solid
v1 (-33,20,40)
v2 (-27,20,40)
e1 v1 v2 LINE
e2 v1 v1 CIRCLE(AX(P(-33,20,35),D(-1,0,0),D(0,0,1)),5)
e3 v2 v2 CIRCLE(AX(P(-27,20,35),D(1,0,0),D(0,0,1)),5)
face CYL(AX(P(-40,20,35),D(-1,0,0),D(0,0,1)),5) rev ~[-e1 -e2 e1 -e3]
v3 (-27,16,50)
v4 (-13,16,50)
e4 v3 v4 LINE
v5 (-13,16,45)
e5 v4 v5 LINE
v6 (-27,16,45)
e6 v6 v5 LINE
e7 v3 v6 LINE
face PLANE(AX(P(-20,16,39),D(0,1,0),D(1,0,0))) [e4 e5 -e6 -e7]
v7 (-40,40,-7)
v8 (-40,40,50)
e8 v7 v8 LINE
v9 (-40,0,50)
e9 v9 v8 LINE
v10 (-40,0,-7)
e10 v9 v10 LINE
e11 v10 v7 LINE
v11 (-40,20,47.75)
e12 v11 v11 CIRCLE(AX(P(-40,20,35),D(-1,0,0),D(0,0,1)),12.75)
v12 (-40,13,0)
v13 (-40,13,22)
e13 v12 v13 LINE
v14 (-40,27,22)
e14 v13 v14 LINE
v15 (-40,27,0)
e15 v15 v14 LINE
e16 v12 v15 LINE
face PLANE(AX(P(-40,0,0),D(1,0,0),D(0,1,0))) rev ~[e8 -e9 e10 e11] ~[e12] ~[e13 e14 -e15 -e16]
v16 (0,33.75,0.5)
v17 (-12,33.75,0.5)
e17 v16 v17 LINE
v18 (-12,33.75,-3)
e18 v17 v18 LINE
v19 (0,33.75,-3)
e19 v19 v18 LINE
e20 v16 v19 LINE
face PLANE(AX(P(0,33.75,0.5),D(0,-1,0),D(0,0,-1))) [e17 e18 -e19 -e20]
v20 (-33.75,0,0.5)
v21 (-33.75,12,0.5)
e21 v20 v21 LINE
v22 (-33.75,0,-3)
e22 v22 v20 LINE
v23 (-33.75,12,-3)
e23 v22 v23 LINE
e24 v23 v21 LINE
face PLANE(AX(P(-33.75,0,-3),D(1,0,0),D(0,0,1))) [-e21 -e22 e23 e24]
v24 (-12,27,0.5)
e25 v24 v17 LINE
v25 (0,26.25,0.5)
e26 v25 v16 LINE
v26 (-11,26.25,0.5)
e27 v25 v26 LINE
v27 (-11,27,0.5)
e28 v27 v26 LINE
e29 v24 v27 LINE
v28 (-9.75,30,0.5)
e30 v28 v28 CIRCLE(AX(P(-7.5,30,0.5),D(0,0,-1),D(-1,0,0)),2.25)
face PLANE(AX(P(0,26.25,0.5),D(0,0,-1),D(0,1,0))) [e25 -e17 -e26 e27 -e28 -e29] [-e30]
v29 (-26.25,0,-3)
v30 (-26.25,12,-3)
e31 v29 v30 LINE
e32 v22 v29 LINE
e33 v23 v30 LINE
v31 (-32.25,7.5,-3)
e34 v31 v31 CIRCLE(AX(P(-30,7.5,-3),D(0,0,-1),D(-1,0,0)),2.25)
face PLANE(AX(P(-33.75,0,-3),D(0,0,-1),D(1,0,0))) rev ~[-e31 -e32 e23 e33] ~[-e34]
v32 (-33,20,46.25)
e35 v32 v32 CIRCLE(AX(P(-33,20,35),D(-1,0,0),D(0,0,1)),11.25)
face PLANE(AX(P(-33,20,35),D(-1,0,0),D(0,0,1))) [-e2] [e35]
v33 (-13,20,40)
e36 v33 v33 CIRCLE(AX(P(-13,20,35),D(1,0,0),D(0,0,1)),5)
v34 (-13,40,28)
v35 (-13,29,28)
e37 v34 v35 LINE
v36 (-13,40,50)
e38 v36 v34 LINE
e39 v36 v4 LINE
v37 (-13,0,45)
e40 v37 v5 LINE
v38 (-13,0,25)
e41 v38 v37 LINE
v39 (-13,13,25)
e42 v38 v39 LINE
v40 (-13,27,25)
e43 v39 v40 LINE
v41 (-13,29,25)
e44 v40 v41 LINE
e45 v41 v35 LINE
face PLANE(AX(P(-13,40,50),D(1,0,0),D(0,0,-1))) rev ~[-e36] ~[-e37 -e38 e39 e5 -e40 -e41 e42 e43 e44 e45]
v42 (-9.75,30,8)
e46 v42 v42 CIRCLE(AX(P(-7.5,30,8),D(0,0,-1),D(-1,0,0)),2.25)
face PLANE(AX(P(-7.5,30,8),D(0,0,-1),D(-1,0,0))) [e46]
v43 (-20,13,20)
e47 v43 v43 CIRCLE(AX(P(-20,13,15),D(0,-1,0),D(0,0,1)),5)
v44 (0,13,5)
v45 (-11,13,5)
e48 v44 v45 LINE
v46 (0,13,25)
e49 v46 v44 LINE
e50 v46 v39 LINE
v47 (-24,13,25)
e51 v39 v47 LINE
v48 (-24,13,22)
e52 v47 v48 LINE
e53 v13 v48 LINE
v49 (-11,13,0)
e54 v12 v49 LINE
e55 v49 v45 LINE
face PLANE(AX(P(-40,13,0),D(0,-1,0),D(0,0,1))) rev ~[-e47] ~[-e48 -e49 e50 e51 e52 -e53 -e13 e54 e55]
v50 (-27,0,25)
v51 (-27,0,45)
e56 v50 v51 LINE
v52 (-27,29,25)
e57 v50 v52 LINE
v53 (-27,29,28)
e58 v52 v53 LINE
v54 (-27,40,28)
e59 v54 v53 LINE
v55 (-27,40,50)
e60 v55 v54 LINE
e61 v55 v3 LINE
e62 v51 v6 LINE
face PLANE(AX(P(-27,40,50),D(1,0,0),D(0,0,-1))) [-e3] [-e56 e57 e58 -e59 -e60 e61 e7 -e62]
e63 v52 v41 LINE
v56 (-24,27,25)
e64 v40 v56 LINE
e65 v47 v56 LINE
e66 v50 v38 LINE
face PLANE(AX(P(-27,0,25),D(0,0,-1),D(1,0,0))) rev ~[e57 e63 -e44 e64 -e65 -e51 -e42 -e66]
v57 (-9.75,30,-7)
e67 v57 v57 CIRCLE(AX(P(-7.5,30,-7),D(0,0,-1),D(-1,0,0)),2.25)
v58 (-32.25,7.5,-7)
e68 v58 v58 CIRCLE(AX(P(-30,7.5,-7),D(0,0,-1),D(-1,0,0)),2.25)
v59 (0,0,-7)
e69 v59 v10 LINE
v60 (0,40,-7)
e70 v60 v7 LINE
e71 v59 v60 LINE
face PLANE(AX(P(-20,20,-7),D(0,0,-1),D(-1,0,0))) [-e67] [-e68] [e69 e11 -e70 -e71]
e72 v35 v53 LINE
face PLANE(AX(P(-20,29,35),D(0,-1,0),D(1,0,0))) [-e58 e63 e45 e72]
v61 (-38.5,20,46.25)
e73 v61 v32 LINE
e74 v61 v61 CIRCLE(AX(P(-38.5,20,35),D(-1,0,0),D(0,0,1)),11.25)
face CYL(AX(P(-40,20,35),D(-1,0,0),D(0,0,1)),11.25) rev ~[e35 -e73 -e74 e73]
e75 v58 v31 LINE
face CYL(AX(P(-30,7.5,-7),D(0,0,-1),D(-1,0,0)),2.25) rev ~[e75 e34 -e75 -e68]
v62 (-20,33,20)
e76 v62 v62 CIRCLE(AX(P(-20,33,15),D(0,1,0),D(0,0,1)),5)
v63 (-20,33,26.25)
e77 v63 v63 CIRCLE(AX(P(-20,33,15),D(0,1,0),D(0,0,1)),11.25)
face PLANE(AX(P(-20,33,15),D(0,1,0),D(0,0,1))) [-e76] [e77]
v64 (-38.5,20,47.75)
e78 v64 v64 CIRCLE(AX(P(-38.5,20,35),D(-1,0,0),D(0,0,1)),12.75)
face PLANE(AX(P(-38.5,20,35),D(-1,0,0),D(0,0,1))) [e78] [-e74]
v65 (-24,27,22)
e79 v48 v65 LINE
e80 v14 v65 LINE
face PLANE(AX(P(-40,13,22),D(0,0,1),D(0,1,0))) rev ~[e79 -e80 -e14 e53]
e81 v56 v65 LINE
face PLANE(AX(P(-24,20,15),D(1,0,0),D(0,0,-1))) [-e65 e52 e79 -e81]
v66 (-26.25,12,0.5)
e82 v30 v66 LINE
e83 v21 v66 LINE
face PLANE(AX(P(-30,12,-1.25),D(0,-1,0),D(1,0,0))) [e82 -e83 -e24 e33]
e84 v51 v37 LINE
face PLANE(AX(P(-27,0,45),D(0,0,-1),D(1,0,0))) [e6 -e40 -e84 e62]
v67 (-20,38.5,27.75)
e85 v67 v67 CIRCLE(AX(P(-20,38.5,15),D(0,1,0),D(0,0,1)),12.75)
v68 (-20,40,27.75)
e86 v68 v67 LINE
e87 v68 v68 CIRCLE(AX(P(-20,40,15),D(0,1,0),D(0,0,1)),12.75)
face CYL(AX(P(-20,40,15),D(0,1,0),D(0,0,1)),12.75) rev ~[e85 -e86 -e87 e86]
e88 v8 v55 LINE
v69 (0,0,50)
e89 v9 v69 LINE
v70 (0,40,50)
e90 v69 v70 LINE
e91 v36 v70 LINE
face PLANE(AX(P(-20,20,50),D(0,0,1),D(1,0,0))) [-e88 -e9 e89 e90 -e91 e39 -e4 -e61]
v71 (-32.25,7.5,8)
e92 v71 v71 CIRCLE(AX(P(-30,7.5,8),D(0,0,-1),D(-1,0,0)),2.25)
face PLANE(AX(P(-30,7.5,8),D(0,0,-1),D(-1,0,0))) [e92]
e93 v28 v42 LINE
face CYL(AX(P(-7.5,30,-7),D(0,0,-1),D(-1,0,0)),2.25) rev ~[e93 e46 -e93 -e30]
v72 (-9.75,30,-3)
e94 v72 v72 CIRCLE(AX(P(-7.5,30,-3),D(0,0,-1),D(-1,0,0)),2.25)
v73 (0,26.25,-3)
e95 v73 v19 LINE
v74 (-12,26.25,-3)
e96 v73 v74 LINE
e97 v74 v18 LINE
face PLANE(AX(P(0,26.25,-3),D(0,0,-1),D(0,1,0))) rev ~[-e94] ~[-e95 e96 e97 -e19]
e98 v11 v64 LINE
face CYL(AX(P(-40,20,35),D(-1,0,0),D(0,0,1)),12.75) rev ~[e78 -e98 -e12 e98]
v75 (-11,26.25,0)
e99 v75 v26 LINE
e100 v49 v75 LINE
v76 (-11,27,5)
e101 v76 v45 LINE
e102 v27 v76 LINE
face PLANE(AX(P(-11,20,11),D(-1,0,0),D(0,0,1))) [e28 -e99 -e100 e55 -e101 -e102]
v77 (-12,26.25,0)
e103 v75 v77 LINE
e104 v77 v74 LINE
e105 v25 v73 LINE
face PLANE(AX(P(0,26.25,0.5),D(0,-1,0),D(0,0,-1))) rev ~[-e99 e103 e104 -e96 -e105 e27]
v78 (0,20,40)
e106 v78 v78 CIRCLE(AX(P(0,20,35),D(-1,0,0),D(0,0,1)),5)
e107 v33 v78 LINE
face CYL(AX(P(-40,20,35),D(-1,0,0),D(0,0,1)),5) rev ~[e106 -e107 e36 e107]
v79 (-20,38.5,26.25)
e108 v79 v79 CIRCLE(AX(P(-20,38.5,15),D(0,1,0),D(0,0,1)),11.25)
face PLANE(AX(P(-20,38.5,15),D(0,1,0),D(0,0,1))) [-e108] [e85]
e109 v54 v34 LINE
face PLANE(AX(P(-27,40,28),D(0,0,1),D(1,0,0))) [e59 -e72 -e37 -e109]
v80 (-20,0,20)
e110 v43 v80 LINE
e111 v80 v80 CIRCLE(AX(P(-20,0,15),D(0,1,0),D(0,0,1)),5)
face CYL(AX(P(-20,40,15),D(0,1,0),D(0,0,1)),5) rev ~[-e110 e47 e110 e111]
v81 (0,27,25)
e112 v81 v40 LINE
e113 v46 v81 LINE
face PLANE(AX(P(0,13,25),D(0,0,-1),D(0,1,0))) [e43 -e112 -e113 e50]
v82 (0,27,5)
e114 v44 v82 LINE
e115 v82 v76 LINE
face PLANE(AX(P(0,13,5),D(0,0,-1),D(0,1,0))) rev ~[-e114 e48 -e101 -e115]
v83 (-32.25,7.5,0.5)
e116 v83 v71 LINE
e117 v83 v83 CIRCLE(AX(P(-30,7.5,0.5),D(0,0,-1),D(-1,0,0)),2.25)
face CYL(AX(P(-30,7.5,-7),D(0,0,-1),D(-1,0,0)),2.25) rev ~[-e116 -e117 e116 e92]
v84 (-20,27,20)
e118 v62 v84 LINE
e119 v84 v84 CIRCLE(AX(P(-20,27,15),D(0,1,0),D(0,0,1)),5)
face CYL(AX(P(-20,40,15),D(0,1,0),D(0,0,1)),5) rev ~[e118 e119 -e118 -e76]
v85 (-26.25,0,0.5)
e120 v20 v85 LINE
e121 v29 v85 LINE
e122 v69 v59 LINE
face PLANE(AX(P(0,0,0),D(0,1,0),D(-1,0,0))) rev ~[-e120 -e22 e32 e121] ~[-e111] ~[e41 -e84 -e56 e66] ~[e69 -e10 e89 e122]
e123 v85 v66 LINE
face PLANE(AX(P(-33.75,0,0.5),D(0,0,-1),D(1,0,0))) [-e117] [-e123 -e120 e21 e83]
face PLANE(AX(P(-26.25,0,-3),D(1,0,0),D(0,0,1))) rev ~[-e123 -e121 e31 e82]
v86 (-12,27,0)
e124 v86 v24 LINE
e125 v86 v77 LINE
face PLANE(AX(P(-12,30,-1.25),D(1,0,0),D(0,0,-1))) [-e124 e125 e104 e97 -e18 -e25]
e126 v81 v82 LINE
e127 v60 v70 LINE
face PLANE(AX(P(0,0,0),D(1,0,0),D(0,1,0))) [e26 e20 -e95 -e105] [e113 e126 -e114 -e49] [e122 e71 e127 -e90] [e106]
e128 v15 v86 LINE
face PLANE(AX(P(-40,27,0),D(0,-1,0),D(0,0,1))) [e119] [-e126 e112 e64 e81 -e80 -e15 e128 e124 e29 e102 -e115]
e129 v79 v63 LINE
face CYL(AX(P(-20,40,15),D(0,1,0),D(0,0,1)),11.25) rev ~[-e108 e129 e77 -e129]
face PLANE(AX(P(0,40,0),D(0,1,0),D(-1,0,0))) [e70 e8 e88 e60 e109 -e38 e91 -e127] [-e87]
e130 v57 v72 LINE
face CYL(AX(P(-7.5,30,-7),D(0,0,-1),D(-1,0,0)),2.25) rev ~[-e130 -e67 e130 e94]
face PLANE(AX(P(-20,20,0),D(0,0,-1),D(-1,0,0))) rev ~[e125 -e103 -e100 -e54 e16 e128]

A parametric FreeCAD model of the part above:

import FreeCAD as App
import Part
import Sketcher

V = App.Vector
Q = App.Units.Quantity


def add_polygon(sketch, points):
    """Adds a closed chain of lines whose ends are joined by coincident constraints."""
    first, n = sketch.GeometryCount, len(points)
    for a, b in zip(points, points[1:] + points[:1]):
        sketch.addGeometry(Part.LineSegment(App.Vector(*a, 0), App.Vector(*b, 0)), False)
    for i in range(n):
        sketch.addConstraint(Sketcher.Constraint("Coincident", first + i, 2, first + (i + 1) % n, 1))

doc = App.newDocument("Part")
params = doc.addObject("Spreadsheet::Sheet", "Params")
for row, (alias, value) in enumerate([
    ("sketch1_width", "40 mm"),
    ("pad1_length", "50 mm"),
    ("sketch2_diameter", "10 mm"),
    ("sketch3_diameter", "10 mm"),
    ("sketch4_width", "14 mm"),
    ("sketch4_height", "22 mm"),
    ("pocket3_length", "29 mm"),
    ("sketch5_width", "14 mm"),
    ("sketch5_height", "20 mm"),
    ("pocket4_length", "29 mm"),
    ("sketch6_width", "14 mm"),
    ("sketch6_height", "20 mm"),
    ("pocket5_length", "24 mm"),
    ("sketch7_width", "14 mm"),
    ("sketch7_height", "22 mm"),
    ("pocket6_length", "24 mm"),
    ("sketch8_diameter", "22.5 mm"),
    ("pocket7_length", "7 mm"),
    ("sketch9_diameter", "25.5 mm"),
    ("pocket8_length", "1.5 mm"),
    ("sketch10_diameter", "22.5 mm"),
    ("pocket9_length", "7 mm"),
    ("sketch11_diameter", "25.5 mm"),
    ("pocket10_length", "1.5 mm"),
    ("sketch12_width", "40 mm"),
    ("pad2_length", "7 mm"),
    ("sketch13_diameter", "4.5 mm"),
    ("pocket11_length", "15 mm"),
    ("sketch14_width", "7.5 mm"),
    ("sketch14_height", "3.5 mm"),
    ("pocket12_length", "12 mm"),
    ("sketch15_width", "7.5 mm"),
    ("sketch15_height", "3.5 mm"),
    ("pocket13_length", "12 mm"),
], start=1):
    params.set(f"A{row}", alias)
    params.set(f"B{row}", "=" + value)
    params.setAlias(f"B{row}", alias)

body = doc.addObject("PartDesign::Body", "Body")

# Sketch on XY plane
sketch1 = body.newObject("Sketcher::SketchObject", "Sketch")
sketch1.AttachmentSupport = (doc.getObject("XY_Plane"), [""])
sketch1.MapMode = "FlatFace"
add_polygon(sketch1, [(-40, 40), (-40, 0), (0, 0), (0, 40)])  # lines 0-3
sketch1.addConstraint([
    Sketcher.Constraint("Vertical", 0),
    Sketcher.Constraint("Horizontal", 1),
    Sketcher.Constraint("Vertical", 2),
    Sketcher.Constraint("Horizontal", 3),
    Sketcher.Constraint("Coincident", 1, 2, -1, 1),
    Sketcher.Constraint("Equal", 3, 0),
    Sketcher.Constraint("DistanceX", 1, 1, 1, 2, Q("40 mm")),
])
sketch1.setExpression("Constraints[10]", "Params.sketch1_width")
pad1 = body.newObject("PartDesign::Pad", "Pad")
pad1.Profile = sketch1
pad1.setExpression("Length", "Params.pad1_length")

# Sketch on XZ plane
sketch2 = body.newObject("Sketcher::SketchObject", "Sketch001")
sketch2.AttachmentSupport = (doc.getObject("XZ_Plane"), [""])
sketch2.MapMode = "FlatFace"
sketch2.AttachmentOffset = App.Placement(V(0, 0, -40), App.Rotation())
sketch2.addGeometry(Part.Circle(V(-20, 15, 0), V(0, 0, 1), 5), False)
sketch2.addConstraint([
    Sketcher.Constraint("Diameter", 0, Q("10 mm")),
    Sketcher.Constraint("DistanceX", 0, 3, -1, 1, Q("20 mm")),
    Sketcher.Constraint("DistanceY", -1, 1, 0, 3, Q("15 mm")),
])
sketch2.setExpression("Constraints[0]", "Params.sketch2_diameter")
pocket1 = body.newObject("PartDesign::Pocket", "Pocket")
pocket1.Profile = sketch2
pocket1.Type = "ThroughAll"
pocket1.Reversed = True

# Sketch on YZ plane
sketch3 = body.newObject("Sketcher::SketchObject", "Sketch002")
sketch3.AttachmentSupport = (doc.getObject("YZ_Plane"), [""])
sketch3.MapMode = "FlatFace"
sketch3.AttachmentOffset = App.Placement(V(0, 0, -40), App.Rotation())
sketch3.addGeometry(Part.Circle(V(20, 35, 0), V(0, 0, 1), 5), False)
sketch3.addConstraint([
    Sketcher.Constraint("Diameter", 0, Q("10 mm")),
    Sketcher.Constraint("DistanceX", -1, 1, 0, 3, Q("20 mm")),
    Sketcher.Constraint("DistanceY", -1, 1, 0, 3, Q("35 mm")),
])
sketch3.setExpression("Constraints[0]", "Params.sketch3_diameter")
pocket2 = body.newObject("PartDesign::Pocket", "Pocket001")
pocket2.Profile = sketch3
pocket2.Type = "ThroughAll"
pocket2.Reversed = True

# Sketch on YZ plane
sketch4 = body.newObject("Sketcher::SketchObject", "Sketch003")
sketch4.AttachmentSupport = (doc.getObject("YZ_Plane"), [""])
sketch4.MapMode = "FlatFace"
sketch4.AttachmentOffset = App.Placement(V(0, 0, -40), App.Rotation())
add_polygon(sketch4, [(27, 0), (13, 0), (13, 22), (27, 22)])  # lines 0-3
sketch4.addConstraint([
    Sketcher.Constraint("Horizontal", 0),
    Sketcher.Constraint("Vertical", 1),
    Sketcher.Constraint("Horizontal", 2),
    Sketcher.Constraint("Vertical", 3),
    Sketcher.Constraint("PointOnObject", 0, 2, -1),
    Sketcher.Constraint("DistanceX", 0, 2, 0, 1, Q("14 mm")),
    Sketcher.Constraint("DistanceY", 1, 1, 1, 2, Q("22 mm")),
    Sketcher.Constraint("DistanceX", -1, 1, 0, 2, Q("13 mm")),
])
sketch4.setExpression("Constraints[9]", "Params.sketch4_width")
sketch4.setExpression("Constraints[10]", "Params.sketch4_height")
pocket3 = body.newObject("PartDesign::Pocket", "Pocket002")
pocket3.Profile = sketch4
pocket3.setExpression("Length", "Params.pocket3_length")
pocket3.Reversed = True

# Sketch on XZ plane
sketch5 = body.newObject("Sketcher::SketchObject", "Sketch004")
sketch5.AttachmentSupport = (doc.getObject("XZ_Plane"), [""])
sketch5.MapMode = "FlatFace"
add_polygon(sketch5, [(-27, 45), (-27, 25), (-13, 25), (-13, 45)])  # lines 0-3
sketch5.addConstraint([
    Sketcher.Constraint("Vertical", 0),
    Sketcher.Constraint("Horizontal", 1),
    Sketcher.Constraint("Vertical", 2),
    Sketcher.Constraint("Horizontal", 3),
    Sketcher.Constraint("DistanceX", 1, 1, 1, 2, Q("14 mm")),
    Sketcher.Constraint("DistanceY", 0, 2, 0, 1, Q("20 mm")),
    Sketcher.Constraint("DistanceX", 0, 2, -1, 1, Q("27 mm")),
    Sketcher.Constraint("DistanceY", -1, 1, 0, 2, Q("25 mm")),
])
sketch5.setExpression("Constraints[8]", "Params.sketch5_width")
sketch5.setExpression("Constraints[9]", "Params.sketch5_height")
pocket4 = body.newObject("PartDesign::Pocket", "Pocket003")
pocket4.Profile = sketch5
pocket4.setExpression("Length", "Params.pocket4_length")

# Sketch on YZ plane
sketch6 = body.newObject("Sketcher::SketchObject", "Sketch005")
sketch6.AttachmentSupport = (doc.getObject("YZ_Plane"), [""])
sketch6.MapMode = "FlatFace"
add_polygon(sketch6, [(27, 25), (13, 25), (13, 5), (27, 5)])  # lines 0-3
sketch6.addConstraint([
    Sketcher.Constraint("Horizontal", 0),
    Sketcher.Constraint("Vertical", 1),
    Sketcher.Constraint("Horizontal", 2),
    Sketcher.Constraint("Vertical", 3),
    Sketcher.Constraint("DistanceX", 0, 2, 0, 1, Q("14 mm")),
    Sketcher.Constraint("DistanceY", 1, 2, 1, 1, Q("20 mm")),
    Sketcher.Constraint("DistanceX", -1, 1, 0, 2, Q("13 mm")),
    Sketcher.Constraint("DistanceY", -1, 1, 0, 2, Q("25 mm")),
])
sketch6.setExpression("Constraints[8]", "Params.sketch6_width")
sketch6.setExpression("Constraints[9]", "Params.sketch6_height")
pocket5 = body.newObject("PartDesign::Pocket", "Pocket004")
pocket5.Profile = sketch6
pocket5.setExpression("Length", "Params.pocket5_length")

# Sketch on XZ plane
sketch7 = body.newObject("Sketcher::SketchObject", "Sketch006")
sketch7.AttachmentSupport = (doc.getObject("XZ_Plane"), [""])
sketch7.MapMode = "FlatFace"
sketch7.AttachmentOffset = App.Placement(V(0, 0, -40), App.Rotation())
add_polygon(sketch7, [(-27, 28), (-27, 50), (-13, 50), (-13, 28)])  # lines 0-3
sketch7.addConstraint([
    Sketcher.Constraint("Vertical", 0),
    Sketcher.Constraint("Horizontal", 1),
    Sketcher.Constraint("Vertical", 2),
    Sketcher.Constraint("Horizontal", 3),
    Sketcher.Constraint("DistanceX", 1, 1, 1, 2, Q("14 mm")),
    Sketcher.Constraint("DistanceY", 0, 1, 0, 2, Q("22 mm")),
    Sketcher.Constraint("DistanceX", 0, 2, -1, 1, Q("27 mm")),
    Sketcher.Constraint("DistanceY", -1, 1, 0, 2, Q("50 mm")),
])
sketch7.setExpression("Constraints[8]", "Params.sketch7_width")
sketch7.setExpression("Constraints[9]", "Params.sketch7_height")
pocket6 = body.newObject("PartDesign::Pocket", "Pocket005")
pocket6.Profile = sketch7
pocket6.setExpression("Length", "Params.pocket6_length")
pocket6.Reversed = True

# Sketch on XZ plane
sketch8 = body.newObject("Sketcher::SketchObject", "Sketch007")
sketch8.AttachmentSupport = (doc.getObject("XZ_Plane"), [""])
sketch8.MapMode = "FlatFace"
sketch8.AttachmentOffset = App.Placement(V(0, 0, -40), App.Rotation())
sketch8.addGeometry(Part.Circle(V(-20, 15, 0), V(0, 0, 1), 11), False)
sketch8.addConstraint([
    Sketcher.Constraint("Diameter", 0, Q("22.5 mm")),
    Sketcher.Constraint("DistanceX", 0, 3, -1, 1, Q("20 mm")),
    Sketcher.Constraint("DistanceY", -1, 1, 0, 3, Q("15 mm")),
])
sketch8.setExpression("Constraints[0]", "Params.sketch8_diameter")
pocket7 = body.newObject("PartDesign::Pocket", "Pocket006")
pocket7.Profile = sketch8
pocket7.setExpression("Length", "Params.pocket7_length")
pocket7.Reversed = True

# Sketch on XZ plane
sketch9 = body.newObject("Sketcher::SketchObject", "Sketch008")
sketch9.AttachmentSupport = (doc.getObject("XZ_Plane"), [""])
sketch9.MapMode = "FlatFace"
sketch9.AttachmentOffset = App.Placement(V(0, 0, -40), App.Rotation())
sketch9.addGeometry(Part.Circle(V(-20, 15, 0), V(0, 0, 1), 13), False)
sketch9.addConstraint([
    Sketcher.Constraint("Diameter", 0, Q("25.5 mm")),
    Sketcher.Constraint("DistanceX", 0, 3, -1, 1, Q("20 mm")),
    Sketcher.Constraint("DistanceY", -1, 1, 0, 3, Q("15 mm")),
])
sketch9.setExpression("Constraints[0]", "Params.sketch9_diameter")
pocket8 = body.newObject("PartDesign::Pocket", "Pocket007")
pocket8.Profile = sketch9
pocket8.setExpression("Length", "Params.pocket8_length")
pocket8.Reversed = True

# Sketch on YZ plane
sketch10 = body.newObject("Sketcher::SketchObject", "Sketch009")
sketch10.AttachmentSupport = (doc.getObject("YZ_Plane"), [""])
sketch10.MapMode = "FlatFace"
sketch10.AttachmentOffset = App.Placement(V(0, 0, -40), App.Rotation())
sketch10.addGeometry(Part.Circle(V(20, 35, 0), V(0, 0, 1), 11), False)
sketch10.addConstraint([
    Sketcher.Constraint("Diameter", 0, Q("22.5 mm")),
    Sketcher.Constraint("DistanceX", -1, 1, 0, 3, Q("20 mm")),
    Sketcher.Constraint("DistanceY", -1, 1, 0, 3, Q("35 mm")),
])
sketch10.setExpression("Constraints[0]", "Params.sketch10_diameter")
pocket9 = body.newObject("PartDesign::Pocket", "Pocket008")
pocket9.Profile = sketch10
pocket9.setExpression("Length", "Params.pocket9_length")
pocket9.Reversed = True

# Sketch on YZ plane
sketch11 = body.newObject("Sketcher::SketchObject", "Sketch010")
sketch11.AttachmentSupport = (doc.getObject("YZ_Plane"), [""])
sketch11.MapMode = "FlatFace"
sketch11.AttachmentOffset = App.Placement(V(0, 0, -40), App.Rotation())
sketch11.addGeometry(Part.Circle(V(20, 35, 0), V(0, 0, 1), 13), False)
sketch11.addConstraint([
    Sketcher.Constraint("Diameter", 0, Q("25.5 mm")),
    Sketcher.Constraint("DistanceX", -1, 1, 0, 3, Q("20 mm")),
    Sketcher.Constraint("DistanceY", -1, 1, 0, 3, Q("35 mm")),
])
sketch11.setExpression("Constraints[0]", "Params.sketch11_diameter")
pocket10 = body.newObject("PartDesign::Pocket", "Pocket009")
pocket10.Profile = sketch11
pocket10.setExpression("Length", "Params.pocket10_length")
pocket10.Reversed = True

# Sketch on XY plane
sketch12 = body.newObject("Sketcher::SketchObject", "Sketch011")
sketch12.AttachmentSupport = (doc.getObject("XY_Plane"), [""])
sketch12.MapMode = "FlatFace"
add_polygon(sketch12, [(0, 40), (0, 0), (-40, 0), (-40, 40)])  # lines 0-3
sketch12.addConstraint([
    Sketcher.Constraint("Vertical", 0),
    Sketcher.Constraint("Horizontal", 1),
    Sketcher.Constraint("Vertical", 2),
    Sketcher.Constraint("Horizontal", 3),
    Sketcher.Constraint("Coincident", 0, 2, -1, 1),
    Sketcher.Constraint("Equal", 3, 0),
    Sketcher.Constraint("DistanceX", 1, 2, 1, 1, Q("40 mm")),
])
sketch12.setExpression("Constraints[10]", "Params.sketch12_width")
pad2 = body.newObject("PartDesign::Pad", "Pad001")
pad2.Profile = sketch12
pad2.setExpression("Length", "Params.pad2_length")
pad2.Reversed = True

# Sketch on XY plane
sketch13 = body.newObject("Sketcher::SketchObject", "Sketch012")
sketch13.AttachmentSupport = (doc.getObject("XY_Plane"), [""])
sketch13.MapMode = "FlatFace"
sketch13.AttachmentOffset = App.Placement(V(0, 0, -7), App.Rotation())
sketch13.addGeometry([
    Part.Circle(V(-7.5, 30, 0), V(0, 0, 1), 2.2),
    Part.Circle(V(-30, 7.5, 0), V(0, 0, 1), 2.2),
], False)
sketch13.addConstraint([
    Sketcher.Constraint("Equal", 0, 1),
    Sketcher.Constraint("Diameter", 0, Q("4.5 mm")),
    Sketcher.Constraint("DistanceY", -1, 1, 0, 3, Q("30 mm")),
    Sketcher.Constraint("DistanceX", 1, 3, -1, 1, Q("30 mm")),
    Sketcher.Constraint("DistanceX", 0, 3, -1, 1, Q("7.5 mm")),
    Sketcher.Constraint("DistanceY", -1, 1, 1, 3, Q("7.5 mm")),
])
sketch13.setExpression("Constraints[1]", "Params.sketch13_diameter")
pocket11 = body.newObject("PartDesign::Pocket", "Pocket010")
pocket11.Profile = sketch13
pocket11.setExpression("Length", "Params.pocket11_length")
pocket11.Reversed = True

# Sketch on YZ plane
sketch14 = body.newObject("Sketcher::SketchObject", "Sketch013")
sketch14.AttachmentSupport = (doc.getObject("YZ_Plane"), [""])
sketch14.MapMode = "FlatFace"
add_polygon(sketch14, [(33.8, 0.5), (26.2, 0.5), (26.2, -3), (33.8, -3)])  # lines 0-3
sketch14.addConstraint([
    Sketcher.Constraint("Horizontal", 0),
    Sketcher.Constraint("Vertical", 1),
    Sketcher.Constraint("Horizontal", 2),
    Sketcher.Constraint("Vertical", 3),
    Sketcher.Constraint("DistanceX", 0, 2, 0, 1, Q("7.5 mm")),
    Sketcher.Constraint("DistanceY", 1, 2, 1, 1, Q("3.5 mm")),
    Sketcher.Constraint("DistanceY", 1, 2, -1, 1, Q("3 mm")),
    Sketcher.Constraint("DistanceX", -1, 1, 0, 2, Q("26.25 mm")),
])
sketch14.setExpression("Constraints[8]", "Params.sketch14_width")
sketch14.setExpression("Constraints[9]", "Params.sketch14_height")
pocket12 = body.newObject("PartDesign::Pocket", "Pocket011")
pocket12.Profile = sketch14
pocket12.setExpression("Length", "Params.pocket12_length")

# Sketch on XZ plane
sketch15 = body.newObject("Sketcher::SketchObject", "Sketch014")
sketch15.AttachmentSupport = (doc.getObject("XZ_Plane"), [""])
sketch15.MapMode = "FlatFace"
add_polygon(sketch15, [(-33.8, 0.5), (-33.8, -3), (-26.2, -3), (-26.2, 0.5)])  # lines 0-3
sketch15.addConstraint([
    Sketcher.Constraint("Vertical", 0),
    Sketcher.Constraint("Horizontal", 1),
    Sketcher.Constraint("Vertical", 2),
    Sketcher.Constraint("Horizontal", 3),
    Sketcher.Constraint("DistanceX", 1, 1, 1, 2, Q("7.5 mm")),
    Sketcher.Constraint("DistanceY", 0, 2, 0, 1, Q("3.5 mm")),
    Sketcher.Constraint("DistanceY", 0, 2, -1, 1, Q("3 mm")),
    Sketcher.Constraint("DistanceX", 0, 2, -1, 1, Q("33.75 mm")),
])
sketch15.setExpression("Constraints[8]", "Params.sketch15_width")
sketch15.setExpression("Constraints[9]", "Params.sketch15_height")
pocket13 = body.newObject("PartDesign::Pocket", "Pocket012")
pocket13.Profile = sketch15
pocket13.setExpression("Length", "Params.pocket13_length")

doc.recompute()
